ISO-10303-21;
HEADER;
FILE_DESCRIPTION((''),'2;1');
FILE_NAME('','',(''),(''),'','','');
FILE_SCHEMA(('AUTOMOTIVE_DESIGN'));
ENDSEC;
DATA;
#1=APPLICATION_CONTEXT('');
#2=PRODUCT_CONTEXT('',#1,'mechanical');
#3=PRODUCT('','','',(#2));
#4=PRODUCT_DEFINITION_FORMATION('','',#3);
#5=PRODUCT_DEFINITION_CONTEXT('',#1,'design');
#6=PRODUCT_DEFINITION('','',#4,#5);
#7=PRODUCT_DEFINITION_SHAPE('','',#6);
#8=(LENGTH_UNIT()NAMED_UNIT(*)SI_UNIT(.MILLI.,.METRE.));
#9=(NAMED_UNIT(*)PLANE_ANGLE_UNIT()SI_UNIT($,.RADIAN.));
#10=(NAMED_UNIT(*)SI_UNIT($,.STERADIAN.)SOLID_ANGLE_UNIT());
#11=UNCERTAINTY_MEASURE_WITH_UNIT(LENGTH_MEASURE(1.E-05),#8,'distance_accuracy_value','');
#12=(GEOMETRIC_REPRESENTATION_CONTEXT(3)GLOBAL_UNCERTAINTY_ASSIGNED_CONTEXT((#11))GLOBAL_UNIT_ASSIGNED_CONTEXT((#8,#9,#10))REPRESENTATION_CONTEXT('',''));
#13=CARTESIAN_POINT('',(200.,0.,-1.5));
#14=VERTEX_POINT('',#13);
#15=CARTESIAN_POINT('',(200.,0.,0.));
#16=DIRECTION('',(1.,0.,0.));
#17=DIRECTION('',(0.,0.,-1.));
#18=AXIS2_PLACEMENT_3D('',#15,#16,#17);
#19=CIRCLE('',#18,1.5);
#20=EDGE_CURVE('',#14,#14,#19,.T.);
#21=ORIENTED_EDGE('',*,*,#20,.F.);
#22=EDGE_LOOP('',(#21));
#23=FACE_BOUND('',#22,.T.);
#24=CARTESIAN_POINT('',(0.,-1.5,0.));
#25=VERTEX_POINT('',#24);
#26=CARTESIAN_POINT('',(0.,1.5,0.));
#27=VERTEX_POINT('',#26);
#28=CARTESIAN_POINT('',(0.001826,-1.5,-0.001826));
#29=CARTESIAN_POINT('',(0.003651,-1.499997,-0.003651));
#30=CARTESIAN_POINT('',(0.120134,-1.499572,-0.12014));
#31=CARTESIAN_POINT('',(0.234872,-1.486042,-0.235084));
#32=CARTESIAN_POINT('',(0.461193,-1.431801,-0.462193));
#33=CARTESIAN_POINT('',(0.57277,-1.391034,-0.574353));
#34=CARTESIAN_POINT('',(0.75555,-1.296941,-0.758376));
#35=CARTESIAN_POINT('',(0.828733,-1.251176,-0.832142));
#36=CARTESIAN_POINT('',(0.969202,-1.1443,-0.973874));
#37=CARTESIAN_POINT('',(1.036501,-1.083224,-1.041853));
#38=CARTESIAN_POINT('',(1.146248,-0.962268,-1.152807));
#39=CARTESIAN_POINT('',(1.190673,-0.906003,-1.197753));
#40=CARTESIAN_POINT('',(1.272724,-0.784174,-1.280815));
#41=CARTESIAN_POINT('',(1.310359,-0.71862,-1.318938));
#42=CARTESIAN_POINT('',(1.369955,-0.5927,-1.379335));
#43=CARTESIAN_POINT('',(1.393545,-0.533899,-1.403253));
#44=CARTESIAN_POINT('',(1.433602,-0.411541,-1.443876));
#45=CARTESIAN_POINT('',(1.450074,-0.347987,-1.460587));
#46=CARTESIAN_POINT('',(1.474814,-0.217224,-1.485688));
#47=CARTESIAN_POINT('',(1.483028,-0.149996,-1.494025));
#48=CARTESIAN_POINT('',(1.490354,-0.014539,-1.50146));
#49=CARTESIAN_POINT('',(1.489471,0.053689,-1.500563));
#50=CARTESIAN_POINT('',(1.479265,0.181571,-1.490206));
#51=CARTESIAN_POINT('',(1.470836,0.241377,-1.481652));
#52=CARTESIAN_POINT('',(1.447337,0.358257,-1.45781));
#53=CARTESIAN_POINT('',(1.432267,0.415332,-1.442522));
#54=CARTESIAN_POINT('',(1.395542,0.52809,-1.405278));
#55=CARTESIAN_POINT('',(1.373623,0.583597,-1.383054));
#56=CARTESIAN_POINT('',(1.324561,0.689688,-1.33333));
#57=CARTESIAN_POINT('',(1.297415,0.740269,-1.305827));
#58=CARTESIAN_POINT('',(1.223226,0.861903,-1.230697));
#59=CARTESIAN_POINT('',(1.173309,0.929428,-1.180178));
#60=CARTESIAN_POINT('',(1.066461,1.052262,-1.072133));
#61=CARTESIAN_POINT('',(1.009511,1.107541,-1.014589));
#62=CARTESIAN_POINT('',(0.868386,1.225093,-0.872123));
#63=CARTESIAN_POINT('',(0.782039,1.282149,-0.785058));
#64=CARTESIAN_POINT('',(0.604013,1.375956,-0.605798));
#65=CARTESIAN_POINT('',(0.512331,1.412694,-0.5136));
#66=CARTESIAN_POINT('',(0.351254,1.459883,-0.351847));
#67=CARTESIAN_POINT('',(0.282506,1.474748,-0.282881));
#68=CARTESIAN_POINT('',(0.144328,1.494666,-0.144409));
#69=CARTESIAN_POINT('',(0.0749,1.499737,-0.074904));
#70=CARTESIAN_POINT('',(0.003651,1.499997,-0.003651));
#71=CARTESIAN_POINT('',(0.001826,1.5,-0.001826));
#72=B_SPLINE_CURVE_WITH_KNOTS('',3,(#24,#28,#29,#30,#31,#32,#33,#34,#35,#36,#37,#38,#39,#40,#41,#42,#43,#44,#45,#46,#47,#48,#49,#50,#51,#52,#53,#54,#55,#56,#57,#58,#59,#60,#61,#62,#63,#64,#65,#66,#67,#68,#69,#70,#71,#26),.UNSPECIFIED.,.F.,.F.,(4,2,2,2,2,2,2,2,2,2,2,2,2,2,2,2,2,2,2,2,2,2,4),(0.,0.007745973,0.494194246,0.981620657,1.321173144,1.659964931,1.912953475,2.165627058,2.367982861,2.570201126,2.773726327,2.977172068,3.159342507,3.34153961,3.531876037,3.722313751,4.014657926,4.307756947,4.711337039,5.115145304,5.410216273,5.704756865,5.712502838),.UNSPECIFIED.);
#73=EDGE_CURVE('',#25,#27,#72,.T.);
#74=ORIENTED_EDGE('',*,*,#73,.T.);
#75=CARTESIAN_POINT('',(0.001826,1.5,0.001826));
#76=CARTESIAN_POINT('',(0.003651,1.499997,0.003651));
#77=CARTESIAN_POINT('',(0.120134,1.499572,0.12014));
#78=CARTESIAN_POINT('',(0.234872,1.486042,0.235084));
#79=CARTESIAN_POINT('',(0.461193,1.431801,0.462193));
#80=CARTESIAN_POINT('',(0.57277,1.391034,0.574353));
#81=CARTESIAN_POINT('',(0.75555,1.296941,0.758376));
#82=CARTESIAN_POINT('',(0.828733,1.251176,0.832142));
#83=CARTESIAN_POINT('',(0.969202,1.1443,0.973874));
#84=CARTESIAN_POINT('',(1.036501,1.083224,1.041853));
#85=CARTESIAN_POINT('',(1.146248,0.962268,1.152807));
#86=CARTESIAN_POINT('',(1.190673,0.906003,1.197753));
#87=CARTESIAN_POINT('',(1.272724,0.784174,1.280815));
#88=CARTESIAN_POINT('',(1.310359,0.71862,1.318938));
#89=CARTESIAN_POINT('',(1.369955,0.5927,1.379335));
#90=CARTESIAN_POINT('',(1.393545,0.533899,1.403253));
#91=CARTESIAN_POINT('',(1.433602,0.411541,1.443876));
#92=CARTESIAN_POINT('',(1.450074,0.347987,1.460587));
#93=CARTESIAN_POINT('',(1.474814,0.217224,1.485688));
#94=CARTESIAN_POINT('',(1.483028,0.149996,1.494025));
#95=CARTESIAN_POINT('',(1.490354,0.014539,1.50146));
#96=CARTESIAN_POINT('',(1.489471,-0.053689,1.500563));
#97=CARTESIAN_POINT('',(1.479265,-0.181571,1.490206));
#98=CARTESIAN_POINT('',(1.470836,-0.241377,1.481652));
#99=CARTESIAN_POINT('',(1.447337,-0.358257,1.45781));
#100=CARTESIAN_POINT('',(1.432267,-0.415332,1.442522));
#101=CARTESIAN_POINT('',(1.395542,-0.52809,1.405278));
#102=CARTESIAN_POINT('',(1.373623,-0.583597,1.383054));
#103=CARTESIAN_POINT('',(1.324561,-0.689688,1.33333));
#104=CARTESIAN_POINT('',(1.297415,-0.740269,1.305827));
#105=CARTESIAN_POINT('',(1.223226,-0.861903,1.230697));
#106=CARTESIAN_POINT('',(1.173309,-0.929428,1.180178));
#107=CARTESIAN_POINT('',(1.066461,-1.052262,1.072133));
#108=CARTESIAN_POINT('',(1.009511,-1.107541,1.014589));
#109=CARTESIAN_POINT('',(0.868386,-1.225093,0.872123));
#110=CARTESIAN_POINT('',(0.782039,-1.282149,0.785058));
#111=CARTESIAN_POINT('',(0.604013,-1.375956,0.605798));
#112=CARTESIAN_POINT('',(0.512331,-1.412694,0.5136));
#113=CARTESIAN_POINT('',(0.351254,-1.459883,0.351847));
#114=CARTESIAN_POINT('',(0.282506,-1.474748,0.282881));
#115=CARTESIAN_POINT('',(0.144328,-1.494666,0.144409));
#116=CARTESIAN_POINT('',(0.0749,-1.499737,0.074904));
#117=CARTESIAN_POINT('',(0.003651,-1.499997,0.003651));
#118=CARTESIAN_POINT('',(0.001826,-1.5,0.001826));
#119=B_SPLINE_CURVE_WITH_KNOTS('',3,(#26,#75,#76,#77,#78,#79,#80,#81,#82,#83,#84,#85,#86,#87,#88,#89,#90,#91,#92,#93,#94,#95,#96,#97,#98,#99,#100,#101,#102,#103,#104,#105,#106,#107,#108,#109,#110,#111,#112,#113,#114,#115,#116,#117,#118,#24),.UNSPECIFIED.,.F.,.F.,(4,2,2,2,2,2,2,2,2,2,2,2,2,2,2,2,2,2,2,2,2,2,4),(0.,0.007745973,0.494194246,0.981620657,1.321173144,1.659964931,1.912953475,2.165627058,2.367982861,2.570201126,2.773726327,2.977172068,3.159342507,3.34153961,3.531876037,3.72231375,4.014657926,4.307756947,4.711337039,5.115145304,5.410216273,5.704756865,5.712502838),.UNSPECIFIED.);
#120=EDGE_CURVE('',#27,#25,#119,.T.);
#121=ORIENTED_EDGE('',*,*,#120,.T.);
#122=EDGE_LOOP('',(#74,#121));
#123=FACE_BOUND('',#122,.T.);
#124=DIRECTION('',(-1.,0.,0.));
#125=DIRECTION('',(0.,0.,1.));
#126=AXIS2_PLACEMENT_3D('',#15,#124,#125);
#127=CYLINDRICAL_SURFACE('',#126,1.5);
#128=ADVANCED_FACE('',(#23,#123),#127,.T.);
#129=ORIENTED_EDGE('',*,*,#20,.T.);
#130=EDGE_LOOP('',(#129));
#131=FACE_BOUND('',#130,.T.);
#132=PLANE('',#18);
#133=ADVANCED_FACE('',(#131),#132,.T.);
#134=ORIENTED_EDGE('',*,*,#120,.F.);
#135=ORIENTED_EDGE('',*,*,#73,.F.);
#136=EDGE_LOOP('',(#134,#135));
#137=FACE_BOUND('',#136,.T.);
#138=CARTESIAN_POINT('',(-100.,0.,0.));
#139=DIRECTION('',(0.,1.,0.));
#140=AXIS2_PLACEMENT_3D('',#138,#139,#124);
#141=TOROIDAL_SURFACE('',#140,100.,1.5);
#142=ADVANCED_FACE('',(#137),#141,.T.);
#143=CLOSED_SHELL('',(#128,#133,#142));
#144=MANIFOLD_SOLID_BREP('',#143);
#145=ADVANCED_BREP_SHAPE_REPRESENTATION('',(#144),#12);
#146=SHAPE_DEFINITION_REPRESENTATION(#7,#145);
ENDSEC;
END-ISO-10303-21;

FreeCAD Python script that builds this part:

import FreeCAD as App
import Part
import Sketcher
Q = App.Units.Quantity

doc = App.newDocument("Part")
body = doc.addObject("PartDesign::Body", "Body")

# Sketch on XY plane
sketch1 = doc.addObject("Sketcher::SketchObject", "Sketch")
body.addObject(sketch1)
sketch1.AttachmentSupport = (doc.XY_Plane, [""])
sketch1.MapMode = "FlatFace"
sketch1.addGeometry(Part.Circle(App.Vector(0, 0, 0), App.Vector(0, 0, 1), 1.5), False)
sketch1.addGeometry(Part.LineSegment(App.Vector(-100, 0, 0), App.Vector(-100, -10, 0)), True)  # axis
sketch1.addConstraint([
    Sketcher.Constraint("Vertical", 1),
    Sketcher.Constraint("Coincident", 0, 3, -1, 1),
    Sketcher.Constraint("PointOnObject", 1, 1, -1),
    Sketcher.Constraint("Diameter", 0, Q("3 mm")),
    Sketcher.Constraint("DistanceY", 1, 2, 1, 1, Q("10 mm")),
    Sketcher.Constraint("DistanceX", 1, 1, -1, 1, Q("100 mm")),
])
revolution = doc.addObject("PartDesign::Revolution", "Revolution")
body.addObject(revolution)
revolution.Profile = sketch1
revolution.ReferenceAxis = (sketch1, ["Axis0"])
revolution.Angle = 360

# Sketch on YZ plane
sketch2 = doc.addObject("Sketcher::SketchObject", "Sketch001")
body.addObject(sketch2)
sketch2.AttachmentSupport = (doc.YZ_Plane, [""])
sketch2.MapMode = "FlatFace"
sketch2.addGeometry(Part.Circle(App.Vector(0, 0, 0), App.Vector(0, 0, 1), 1.5), False)
sketch2.addConstraint([
    Sketcher.Constraint("Coincident", 0, 3, -1, 1),
    Sketcher.Constraint("Diameter", 0, Q("3 mm")),
])
pad1 = doc.addObject("PartDesign::Pad", "Pad")
body.addObject(pad1)
pad1.Profile = sketch2
pad1.Length = 200

doc.recompute()
